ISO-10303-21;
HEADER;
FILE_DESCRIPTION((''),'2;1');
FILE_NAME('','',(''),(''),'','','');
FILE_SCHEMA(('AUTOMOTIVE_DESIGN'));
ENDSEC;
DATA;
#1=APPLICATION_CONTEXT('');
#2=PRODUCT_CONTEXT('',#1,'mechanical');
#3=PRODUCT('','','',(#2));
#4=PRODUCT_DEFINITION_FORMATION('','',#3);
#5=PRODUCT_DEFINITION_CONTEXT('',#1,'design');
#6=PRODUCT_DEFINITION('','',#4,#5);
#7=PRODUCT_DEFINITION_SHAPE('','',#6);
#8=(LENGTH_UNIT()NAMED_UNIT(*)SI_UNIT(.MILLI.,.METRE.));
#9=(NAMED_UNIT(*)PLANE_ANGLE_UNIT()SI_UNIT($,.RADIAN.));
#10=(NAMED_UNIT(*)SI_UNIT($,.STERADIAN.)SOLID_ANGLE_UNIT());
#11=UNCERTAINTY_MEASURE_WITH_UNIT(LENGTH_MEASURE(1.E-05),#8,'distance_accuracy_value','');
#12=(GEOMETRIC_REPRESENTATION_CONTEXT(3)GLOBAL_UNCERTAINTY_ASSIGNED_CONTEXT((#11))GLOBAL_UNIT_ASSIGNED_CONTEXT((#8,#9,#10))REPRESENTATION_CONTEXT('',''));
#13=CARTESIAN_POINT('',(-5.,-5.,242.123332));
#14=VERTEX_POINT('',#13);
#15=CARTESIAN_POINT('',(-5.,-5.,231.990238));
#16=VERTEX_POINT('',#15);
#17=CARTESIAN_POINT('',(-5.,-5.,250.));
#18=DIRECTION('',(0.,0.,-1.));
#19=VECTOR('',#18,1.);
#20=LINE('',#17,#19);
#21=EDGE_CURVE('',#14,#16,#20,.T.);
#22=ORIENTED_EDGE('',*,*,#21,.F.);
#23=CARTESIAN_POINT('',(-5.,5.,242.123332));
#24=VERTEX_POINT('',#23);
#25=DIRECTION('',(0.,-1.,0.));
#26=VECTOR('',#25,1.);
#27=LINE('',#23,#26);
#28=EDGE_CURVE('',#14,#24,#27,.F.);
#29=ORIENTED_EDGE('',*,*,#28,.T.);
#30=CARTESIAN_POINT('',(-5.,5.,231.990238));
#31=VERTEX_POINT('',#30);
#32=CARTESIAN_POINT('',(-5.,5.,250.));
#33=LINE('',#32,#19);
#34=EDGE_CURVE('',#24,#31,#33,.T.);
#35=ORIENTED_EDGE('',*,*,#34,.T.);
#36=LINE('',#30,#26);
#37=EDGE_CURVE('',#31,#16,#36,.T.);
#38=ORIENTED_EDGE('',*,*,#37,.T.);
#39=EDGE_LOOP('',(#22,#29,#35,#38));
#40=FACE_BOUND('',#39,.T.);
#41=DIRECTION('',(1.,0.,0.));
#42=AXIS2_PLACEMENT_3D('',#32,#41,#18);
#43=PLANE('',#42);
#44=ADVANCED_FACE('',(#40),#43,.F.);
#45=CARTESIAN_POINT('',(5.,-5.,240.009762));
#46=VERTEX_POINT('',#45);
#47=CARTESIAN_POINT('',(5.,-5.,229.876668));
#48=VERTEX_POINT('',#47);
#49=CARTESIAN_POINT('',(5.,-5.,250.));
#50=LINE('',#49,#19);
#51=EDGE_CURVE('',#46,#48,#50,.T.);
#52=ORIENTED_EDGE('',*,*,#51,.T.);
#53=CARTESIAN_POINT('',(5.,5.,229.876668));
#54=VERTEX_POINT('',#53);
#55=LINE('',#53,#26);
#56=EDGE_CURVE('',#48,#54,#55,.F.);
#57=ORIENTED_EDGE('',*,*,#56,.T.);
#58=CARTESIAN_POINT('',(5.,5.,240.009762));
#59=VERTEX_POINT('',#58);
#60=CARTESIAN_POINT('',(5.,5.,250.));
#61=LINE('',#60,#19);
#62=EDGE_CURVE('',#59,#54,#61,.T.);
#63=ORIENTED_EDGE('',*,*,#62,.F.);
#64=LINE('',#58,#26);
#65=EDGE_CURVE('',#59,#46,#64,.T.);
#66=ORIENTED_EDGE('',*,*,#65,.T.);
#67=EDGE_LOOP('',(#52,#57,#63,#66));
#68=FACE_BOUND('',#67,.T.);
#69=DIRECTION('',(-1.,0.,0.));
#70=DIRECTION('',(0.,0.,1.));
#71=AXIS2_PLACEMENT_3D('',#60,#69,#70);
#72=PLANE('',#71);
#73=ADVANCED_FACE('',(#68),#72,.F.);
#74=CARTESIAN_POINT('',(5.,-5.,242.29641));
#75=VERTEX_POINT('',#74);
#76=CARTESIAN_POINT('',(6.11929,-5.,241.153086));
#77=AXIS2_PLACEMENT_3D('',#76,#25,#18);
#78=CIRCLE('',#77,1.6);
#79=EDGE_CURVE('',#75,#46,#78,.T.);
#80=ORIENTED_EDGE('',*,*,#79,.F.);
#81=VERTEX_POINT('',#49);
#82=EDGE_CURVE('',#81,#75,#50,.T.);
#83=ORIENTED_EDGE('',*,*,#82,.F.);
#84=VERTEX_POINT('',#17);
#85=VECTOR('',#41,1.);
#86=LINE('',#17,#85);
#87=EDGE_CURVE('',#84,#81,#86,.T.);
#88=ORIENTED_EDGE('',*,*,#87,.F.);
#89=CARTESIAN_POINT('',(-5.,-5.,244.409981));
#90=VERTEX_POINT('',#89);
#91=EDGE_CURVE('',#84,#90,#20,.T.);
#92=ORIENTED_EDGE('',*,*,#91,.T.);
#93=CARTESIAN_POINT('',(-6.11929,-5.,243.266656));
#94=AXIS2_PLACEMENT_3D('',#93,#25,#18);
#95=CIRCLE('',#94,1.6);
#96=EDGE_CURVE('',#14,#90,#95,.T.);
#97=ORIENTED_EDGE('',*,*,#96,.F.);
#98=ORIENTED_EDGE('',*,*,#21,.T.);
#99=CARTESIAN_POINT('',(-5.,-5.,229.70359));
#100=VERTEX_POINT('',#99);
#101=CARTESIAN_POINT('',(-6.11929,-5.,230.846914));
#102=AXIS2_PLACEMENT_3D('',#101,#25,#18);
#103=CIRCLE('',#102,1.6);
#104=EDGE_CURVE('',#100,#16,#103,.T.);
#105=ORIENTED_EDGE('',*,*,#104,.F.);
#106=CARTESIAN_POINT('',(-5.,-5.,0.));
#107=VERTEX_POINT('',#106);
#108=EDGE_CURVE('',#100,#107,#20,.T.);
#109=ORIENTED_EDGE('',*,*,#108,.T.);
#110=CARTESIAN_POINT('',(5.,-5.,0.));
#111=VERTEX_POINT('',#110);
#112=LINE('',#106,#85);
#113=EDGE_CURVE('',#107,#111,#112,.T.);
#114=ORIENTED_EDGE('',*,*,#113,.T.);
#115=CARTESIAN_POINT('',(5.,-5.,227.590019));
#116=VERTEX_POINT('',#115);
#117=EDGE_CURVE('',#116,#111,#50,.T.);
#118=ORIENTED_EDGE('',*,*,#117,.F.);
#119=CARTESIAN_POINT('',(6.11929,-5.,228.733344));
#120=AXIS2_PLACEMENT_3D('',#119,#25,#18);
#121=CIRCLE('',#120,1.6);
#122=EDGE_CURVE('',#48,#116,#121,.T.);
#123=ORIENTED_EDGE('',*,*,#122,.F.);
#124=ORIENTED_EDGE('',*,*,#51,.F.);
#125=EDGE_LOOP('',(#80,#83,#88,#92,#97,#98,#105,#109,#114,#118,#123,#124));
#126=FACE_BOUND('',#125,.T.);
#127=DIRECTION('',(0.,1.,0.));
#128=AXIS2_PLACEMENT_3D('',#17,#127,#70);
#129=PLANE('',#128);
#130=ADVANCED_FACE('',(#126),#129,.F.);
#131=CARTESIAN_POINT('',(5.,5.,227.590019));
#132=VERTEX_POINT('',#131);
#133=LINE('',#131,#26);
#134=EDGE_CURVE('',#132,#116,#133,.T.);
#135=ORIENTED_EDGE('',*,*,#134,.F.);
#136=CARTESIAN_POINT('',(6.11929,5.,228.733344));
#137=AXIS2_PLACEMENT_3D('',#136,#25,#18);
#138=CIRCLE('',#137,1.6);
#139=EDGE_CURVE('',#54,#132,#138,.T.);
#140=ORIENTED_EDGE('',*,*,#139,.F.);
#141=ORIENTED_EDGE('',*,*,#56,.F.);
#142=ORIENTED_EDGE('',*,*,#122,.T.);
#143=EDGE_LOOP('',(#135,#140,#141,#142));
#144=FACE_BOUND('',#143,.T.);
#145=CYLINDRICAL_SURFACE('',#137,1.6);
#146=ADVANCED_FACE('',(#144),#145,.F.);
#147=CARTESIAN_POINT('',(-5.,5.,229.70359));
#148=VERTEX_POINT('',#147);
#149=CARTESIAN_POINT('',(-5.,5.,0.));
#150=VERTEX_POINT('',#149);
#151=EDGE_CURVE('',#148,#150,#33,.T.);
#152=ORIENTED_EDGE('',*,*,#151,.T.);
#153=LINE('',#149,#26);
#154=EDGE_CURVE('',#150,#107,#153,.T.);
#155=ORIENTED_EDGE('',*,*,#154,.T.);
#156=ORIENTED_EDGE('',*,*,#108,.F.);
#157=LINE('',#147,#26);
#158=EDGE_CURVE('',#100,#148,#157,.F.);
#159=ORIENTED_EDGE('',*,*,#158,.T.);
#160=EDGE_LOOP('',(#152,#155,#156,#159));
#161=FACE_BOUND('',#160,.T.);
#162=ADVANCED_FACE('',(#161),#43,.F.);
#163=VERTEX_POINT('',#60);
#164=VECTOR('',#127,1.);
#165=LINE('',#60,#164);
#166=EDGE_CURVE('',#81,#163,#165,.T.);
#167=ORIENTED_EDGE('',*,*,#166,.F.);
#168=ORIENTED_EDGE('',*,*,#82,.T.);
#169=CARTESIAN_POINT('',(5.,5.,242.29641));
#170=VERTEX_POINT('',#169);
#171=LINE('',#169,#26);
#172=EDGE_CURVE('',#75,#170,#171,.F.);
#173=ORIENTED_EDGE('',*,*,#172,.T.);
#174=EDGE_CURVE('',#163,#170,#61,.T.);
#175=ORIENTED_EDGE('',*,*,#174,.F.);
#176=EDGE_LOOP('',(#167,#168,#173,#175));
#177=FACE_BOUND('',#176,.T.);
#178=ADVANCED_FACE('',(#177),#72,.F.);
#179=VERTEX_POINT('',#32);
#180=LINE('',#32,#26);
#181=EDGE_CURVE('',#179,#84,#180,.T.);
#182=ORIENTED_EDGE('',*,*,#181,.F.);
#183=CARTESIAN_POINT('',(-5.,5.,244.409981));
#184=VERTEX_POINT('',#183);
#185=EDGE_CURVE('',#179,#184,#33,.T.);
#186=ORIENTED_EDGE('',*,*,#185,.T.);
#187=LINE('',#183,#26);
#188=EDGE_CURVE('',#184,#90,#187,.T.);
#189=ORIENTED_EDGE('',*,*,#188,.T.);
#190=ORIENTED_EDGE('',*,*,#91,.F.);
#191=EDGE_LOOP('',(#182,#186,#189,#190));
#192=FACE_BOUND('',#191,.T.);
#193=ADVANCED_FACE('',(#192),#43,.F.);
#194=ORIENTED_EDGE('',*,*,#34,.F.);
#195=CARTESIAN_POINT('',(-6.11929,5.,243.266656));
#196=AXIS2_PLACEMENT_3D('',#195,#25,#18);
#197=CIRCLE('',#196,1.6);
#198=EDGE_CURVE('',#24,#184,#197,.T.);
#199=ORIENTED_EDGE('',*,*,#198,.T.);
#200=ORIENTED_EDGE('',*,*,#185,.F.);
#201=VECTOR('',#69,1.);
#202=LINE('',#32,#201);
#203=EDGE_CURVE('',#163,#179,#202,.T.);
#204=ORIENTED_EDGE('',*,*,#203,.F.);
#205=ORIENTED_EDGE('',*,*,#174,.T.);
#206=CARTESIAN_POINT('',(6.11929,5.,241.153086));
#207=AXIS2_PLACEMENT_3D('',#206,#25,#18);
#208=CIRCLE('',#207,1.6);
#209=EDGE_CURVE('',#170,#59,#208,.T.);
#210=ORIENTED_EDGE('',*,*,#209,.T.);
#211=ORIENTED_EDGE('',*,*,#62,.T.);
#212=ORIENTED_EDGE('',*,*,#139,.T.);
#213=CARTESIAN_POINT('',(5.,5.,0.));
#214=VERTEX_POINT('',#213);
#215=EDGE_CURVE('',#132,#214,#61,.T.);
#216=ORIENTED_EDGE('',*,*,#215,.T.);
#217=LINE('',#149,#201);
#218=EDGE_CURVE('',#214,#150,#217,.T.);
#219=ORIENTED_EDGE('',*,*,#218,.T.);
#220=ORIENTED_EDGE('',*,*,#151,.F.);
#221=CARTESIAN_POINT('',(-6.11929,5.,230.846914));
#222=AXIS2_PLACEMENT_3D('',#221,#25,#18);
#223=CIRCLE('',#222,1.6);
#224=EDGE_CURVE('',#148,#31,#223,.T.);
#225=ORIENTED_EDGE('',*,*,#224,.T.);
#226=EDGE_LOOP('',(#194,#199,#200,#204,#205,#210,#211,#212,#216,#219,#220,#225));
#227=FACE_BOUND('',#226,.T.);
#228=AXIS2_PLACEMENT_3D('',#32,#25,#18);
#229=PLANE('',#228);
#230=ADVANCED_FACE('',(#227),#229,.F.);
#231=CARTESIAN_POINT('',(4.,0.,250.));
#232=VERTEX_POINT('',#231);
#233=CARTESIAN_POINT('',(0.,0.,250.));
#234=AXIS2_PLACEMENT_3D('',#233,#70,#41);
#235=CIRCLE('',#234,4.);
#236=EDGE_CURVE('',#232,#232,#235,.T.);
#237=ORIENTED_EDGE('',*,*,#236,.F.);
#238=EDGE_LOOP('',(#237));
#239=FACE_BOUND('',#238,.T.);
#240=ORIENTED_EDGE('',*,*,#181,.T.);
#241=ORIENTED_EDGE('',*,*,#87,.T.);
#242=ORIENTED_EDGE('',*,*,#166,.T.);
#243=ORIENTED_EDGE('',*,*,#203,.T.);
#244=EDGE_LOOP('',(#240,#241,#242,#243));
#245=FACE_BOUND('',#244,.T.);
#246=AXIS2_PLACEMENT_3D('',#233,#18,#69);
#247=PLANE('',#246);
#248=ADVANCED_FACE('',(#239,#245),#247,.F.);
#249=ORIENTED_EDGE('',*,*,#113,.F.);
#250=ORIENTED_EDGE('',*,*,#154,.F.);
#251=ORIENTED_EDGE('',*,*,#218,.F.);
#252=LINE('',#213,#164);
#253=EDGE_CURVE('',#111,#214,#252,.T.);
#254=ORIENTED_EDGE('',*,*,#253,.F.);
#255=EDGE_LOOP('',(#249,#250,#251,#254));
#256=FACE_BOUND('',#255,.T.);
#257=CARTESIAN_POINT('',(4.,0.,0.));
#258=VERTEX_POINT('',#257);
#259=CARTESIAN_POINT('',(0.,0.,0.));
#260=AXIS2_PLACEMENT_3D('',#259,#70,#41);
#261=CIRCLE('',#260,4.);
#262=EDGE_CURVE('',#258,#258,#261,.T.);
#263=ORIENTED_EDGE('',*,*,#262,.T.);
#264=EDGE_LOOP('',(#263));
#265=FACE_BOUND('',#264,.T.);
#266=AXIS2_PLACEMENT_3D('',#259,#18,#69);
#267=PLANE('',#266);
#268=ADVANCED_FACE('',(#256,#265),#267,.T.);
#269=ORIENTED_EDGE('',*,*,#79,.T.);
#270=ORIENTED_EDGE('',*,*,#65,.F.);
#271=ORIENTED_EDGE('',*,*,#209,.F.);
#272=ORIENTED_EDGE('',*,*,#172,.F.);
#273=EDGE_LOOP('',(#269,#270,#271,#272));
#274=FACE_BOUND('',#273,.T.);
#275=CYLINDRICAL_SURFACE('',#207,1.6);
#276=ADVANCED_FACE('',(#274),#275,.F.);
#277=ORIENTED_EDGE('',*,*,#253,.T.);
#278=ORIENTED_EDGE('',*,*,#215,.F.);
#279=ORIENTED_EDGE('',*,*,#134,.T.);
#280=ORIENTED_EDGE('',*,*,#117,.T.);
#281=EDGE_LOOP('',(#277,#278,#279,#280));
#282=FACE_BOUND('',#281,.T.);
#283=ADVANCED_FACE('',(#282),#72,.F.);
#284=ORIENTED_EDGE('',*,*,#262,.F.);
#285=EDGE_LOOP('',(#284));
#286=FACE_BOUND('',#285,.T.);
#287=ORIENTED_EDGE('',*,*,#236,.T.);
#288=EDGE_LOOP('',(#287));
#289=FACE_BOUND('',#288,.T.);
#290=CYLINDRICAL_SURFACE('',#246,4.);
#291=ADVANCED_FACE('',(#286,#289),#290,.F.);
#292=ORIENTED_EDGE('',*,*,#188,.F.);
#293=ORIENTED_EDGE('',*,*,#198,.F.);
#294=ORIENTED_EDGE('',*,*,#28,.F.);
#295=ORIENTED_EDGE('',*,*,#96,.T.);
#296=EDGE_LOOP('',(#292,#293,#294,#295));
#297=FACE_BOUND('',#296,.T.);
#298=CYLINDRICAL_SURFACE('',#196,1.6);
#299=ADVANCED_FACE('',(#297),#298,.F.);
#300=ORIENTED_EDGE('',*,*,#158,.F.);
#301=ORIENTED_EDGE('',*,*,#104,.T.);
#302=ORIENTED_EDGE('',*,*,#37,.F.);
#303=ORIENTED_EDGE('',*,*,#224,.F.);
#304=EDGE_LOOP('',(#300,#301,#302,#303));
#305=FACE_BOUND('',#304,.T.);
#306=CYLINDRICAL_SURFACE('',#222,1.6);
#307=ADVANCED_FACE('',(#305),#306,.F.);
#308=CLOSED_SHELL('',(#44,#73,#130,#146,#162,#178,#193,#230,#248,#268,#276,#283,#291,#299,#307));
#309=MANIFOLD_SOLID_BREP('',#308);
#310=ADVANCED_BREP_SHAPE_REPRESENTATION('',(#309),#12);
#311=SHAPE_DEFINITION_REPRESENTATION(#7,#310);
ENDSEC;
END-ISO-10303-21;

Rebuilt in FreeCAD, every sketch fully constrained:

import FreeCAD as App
import Part
import Sketcher
from FreeCAD import Vector
Q = App.Units.Quantity

doc = App.newDocument("Part")
body = doc.addObject("PartDesign::Body", "Body")

# Sketch on XY plane
sketch1 = body.newObject("Sketcher::SketchObject", "Sketch")
sketch1.AttachmentSupport = (doc.getObject("XY_Plane"), [""])
sketch1.MapMode = "FlatFace"
sketch1.addGeometry([
    Part.LineSegment(Vector(-5, 5, 0), Vector(-5, -5, 0)),  # 0
    Part.LineSegment(Vector(-5, -5, 0), Vector(5, -5, 0)),  # 1
    Part.LineSegment(Vector(5, -5, 0), Vector(5, 5, 0)),  # 2
    Part.LineSegment(Vector(5, 5, 0), Vector(-5, 5, 0)),  # 3
    Part.Circle(Vector(0, 0, 0), Vector(0, 0, 1), 4),  # 4
], False)
sketch1.addConstraint([
    Sketcher.Constraint("Coincident", 0, 2, 1, 1),
    Sketcher.Constraint("Coincident", 1, 2, 2, 1),
    Sketcher.Constraint("Coincident", 2, 2, 3, 1),
    Sketcher.Constraint("Coincident", 3, 2, 0, 1),
    Sketcher.Constraint("Vertical", 0),
    Sketcher.Constraint("Horizontal", 1),
    Sketcher.Constraint("Vertical", 2),
    Sketcher.Constraint("Horizontal", 3),
    Sketcher.Constraint("Coincident", 4, 3, -1, 1),
    Sketcher.Constraint("Symmetric", 0, 2, 2, 2, -1, 1),
    Sketcher.Constraint("Equal", 3, 0),
    Sketcher.Constraint("Diameter", 4, Q("8 mm")),
    Sketcher.Constraint("DistanceX", 1, 1, 1, 2, Q("10 mm")),
])
pad1 = body.newObject("PartDesign::Pad", "Pad")
pad1.Profile = sketch1
pad1.Length = 250

# Sketch on XZ plane
sketch2 = body.newObject("Sketcher::SketchObject", "Sketch001")
sketch2.AttachmentSupport = (doc.getObject("XZ_Plane"), [""])
sketch2.MapMode = "FlatFace"
sketch2.AttachmentOffset = App.Placement(Vector(0, 0, 5), App.Rotation())
sketch2.addGeometry([
    Part.Circle(Vector(-6.11929, 243.266656, 0), Vector(0, 0, 1), 1.6),
    Part.Circle(Vector(6.11929, 228.733344, 0), Vector(0, 0, 1), 1.6),
    Part.Circle(Vector(-6.11929, 230.846914, 0), Vector(0, 0, 1), 1.6),
    Part.Circle(Vector(6.11929, 241.153086, 0), Vector(0, 0, 1), 1.6),
], False)
sketch2.addConstraint([
    Sketcher.Constraint("Equal", 0, 1),
    Sketcher.Constraint("Equal", 1, 2),
    Sketcher.Constraint("Equal", 2, 3),
    Sketcher.Constraint("Vertical", 0, 3, 2, 3),
    Sketcher.Constraint("Vertical", 1, 3, 3, 3),
    Sketcher.Constraint("Diameter", 0, Q("3.2 mm")),
    Sketcher.Constraint("DistanceX", 0, 3, -1, 1, Q("6.11929 mm")),
    Sketcher.Constraint("DistanceX", -1, 1, 1, 3, Q("6.11929 mm")),
    Sketcher.Constraint("DistanceY", 1, 3, 2, 3, Q("2.11357 mm")),
    Sketcher.Constraint("DistanceY", 3, 3, 0, 3, Q("2.11357 mm")),
    Sketcher.Constraint("DistanceY", 2, 3, 3, 3, Q("10.306172 mm")),
    Sketcher.Constraint("DistanceY", -1, 1, 0, 3, Q("243.266656 mm")),
])
pocket1 = body.newObject("PartDesign::Pocket", "Pocket")
pocket1.Profile = sketch2
pocket1.Type = "ThroughAll"

doc.recompute()
